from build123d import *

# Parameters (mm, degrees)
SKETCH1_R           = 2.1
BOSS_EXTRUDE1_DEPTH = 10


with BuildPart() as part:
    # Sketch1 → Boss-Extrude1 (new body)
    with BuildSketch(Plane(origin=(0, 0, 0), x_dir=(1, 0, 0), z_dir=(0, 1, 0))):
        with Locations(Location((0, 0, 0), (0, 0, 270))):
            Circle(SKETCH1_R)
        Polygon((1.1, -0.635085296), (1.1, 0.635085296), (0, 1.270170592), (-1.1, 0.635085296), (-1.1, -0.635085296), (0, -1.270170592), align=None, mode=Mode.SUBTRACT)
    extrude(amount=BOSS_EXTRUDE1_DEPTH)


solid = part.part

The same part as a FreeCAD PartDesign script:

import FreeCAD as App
import Part
import Sketcher

V = App.Vector
Q = App.Units.Quantity


def add_polygon(sketch, points):
    """Adds a closed chain of lines whose ends are joined by coincident constraints."""
    first, n = sketch.GeometryCount, len(points)
    for a, b in zip(points, points[1:] + points[:1]):
        sketch.addGeometry(Part.LineSegment(App.Vector(*a, 0), App.Vector(*b, 0)), False)
    for i in range(n):
        sketch.addConstraint(Sketcher.Constraint("Coincident", first + i, 2, first + (i + 1) % n, 1))

doc = App.newDocument("Part")
body = doc.addObject("PartDesign::Body", "Body")

# Sketch on XZ plane
sketch1 = doc.addObject("Sketcher::SketchObject", "Sketch")
body.addObject(sketch1)
sketch1.AttachmentSupport = (doc.XZ_Plane, [""])
sketch1.MapMode = "FlatFace"
sketch1.addGeometry(Part.Circle(V(0, 0, 0), V(0, 0, 1), 2.1), False)  # 0
add_polygon(sketch1, [(1.1, -0.635085), (1.1, 0.635085), (0, 1.270171), (-1.1, 0.635085), (-1.1, -0.635085), (0, -1.270171)])  # lines 1-6
sketch1.addConstraint(Sketcher.Constraint("Vertical", 1))
sketch1.addConstraint(Sketcher.Constraint("Vertical", 4))
sketch1.addConstraint(Sketcher.Constraint("Coincident", 0, 3, -1, 1))
sketch1.addConstraint(Sketcher.Constraint("Symmetric", 1, 2, 4, 2, -1, 1))
sketch1.addConstraint(Sketcher.Constraint("Symmetric", 2, 2, 5, 2, -1, 1))
sketch1.addConstraint(Sketcher.Constraint("PointOnObject", 2, 2, -2))
sketch1.addConstraint(Sketcher.Constraint("Parallel", 3, 6))
sketch1.addConstraint(Sketcher.Constraint("Horizontal", 1, 2, 3, 2))
sketch1.addConstraint(Sketcher.Constraint("Diameter", 0, 4.2))
sketch1.addConstraint(Sketcher.Constraint("Angle", 2, Q("150 deg")))
sketch1.addConstraint(Sketcher.Constraint("DistanceX", -1, 1, 1, 2, 1.1))
sketch1.addConstraint(Sketcher.Constraint("DistanceY", 1, 1, 1, 2, 1.270171))
pad1 = doc.addObject("PartDesign::Pad", "Pad")
body.addObject(pad1)
pad1.Profile = sketch1
pad1.Length = 10
pad1.Reversed = True

doc.recompute()
